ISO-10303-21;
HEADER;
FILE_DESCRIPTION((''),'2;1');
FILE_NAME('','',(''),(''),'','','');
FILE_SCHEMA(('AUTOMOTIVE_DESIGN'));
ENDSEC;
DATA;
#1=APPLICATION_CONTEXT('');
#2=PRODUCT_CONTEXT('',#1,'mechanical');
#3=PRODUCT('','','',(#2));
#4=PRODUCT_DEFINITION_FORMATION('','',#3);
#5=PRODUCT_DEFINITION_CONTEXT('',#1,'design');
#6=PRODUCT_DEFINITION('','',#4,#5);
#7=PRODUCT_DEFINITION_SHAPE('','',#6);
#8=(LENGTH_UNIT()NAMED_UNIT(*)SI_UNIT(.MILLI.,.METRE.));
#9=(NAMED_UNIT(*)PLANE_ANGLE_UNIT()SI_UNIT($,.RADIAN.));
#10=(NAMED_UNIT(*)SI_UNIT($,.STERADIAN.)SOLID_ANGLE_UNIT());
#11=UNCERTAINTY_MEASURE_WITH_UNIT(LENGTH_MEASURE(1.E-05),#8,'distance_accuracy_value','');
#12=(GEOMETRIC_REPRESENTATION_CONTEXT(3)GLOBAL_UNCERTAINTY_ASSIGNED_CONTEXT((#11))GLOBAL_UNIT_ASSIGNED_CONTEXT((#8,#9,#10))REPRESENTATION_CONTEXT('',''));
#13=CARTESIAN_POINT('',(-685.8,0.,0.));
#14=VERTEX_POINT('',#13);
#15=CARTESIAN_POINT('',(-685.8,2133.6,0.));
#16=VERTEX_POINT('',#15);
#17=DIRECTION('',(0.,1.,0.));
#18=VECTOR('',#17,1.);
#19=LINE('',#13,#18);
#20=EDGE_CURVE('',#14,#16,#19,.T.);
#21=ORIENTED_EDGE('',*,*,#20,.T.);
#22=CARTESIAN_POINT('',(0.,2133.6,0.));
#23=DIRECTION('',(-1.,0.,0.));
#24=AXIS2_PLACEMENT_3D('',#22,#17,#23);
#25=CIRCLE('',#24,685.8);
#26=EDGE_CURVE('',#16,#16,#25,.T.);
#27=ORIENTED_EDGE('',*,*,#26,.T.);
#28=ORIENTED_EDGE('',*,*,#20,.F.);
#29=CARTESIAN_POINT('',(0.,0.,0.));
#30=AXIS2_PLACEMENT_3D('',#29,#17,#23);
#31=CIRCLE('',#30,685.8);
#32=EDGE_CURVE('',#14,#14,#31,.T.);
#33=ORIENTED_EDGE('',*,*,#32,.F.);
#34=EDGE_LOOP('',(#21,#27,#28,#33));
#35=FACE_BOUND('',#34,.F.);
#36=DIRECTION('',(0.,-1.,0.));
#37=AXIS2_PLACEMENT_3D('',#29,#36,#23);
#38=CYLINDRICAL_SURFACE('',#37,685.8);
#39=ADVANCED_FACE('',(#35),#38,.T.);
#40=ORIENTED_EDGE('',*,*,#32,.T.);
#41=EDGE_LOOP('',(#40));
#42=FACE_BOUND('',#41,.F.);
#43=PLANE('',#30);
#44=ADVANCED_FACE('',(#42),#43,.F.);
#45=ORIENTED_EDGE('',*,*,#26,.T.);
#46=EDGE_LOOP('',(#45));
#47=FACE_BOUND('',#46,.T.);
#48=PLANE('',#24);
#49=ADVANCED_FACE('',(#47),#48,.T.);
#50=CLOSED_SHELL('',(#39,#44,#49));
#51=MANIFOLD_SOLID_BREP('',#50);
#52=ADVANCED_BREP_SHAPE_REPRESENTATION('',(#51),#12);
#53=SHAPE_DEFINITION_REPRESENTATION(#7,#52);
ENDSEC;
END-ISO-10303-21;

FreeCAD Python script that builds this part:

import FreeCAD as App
import Part
import Sketcher
from FreeCAD import Vector
Q = App.Units.Quantity

doc = App.newDocument("Part")
body = doc.addObject("PartDesign::Body", "Body")

# Sketch on XZ plane
sketch1 = body.newObject("Sketcher::SketchObject", "Sketch")
sketch1.AttachmentSupport = (doc.getObject("XZ_Plane"), [""])
sketch1.MapMode = "FlatFace"
sketch1.addGeometry(Part.Circle(Vector(0, 0, 0), Vector(0, 0, 1), 685.8), False)
sketch1.addConstraint([
    Sketcher.Constraint("Coincident", 0, 3, -1, 1),
    Sketcher.Constraint("Diameter", 0, Q("54 in")),
])
pad1 = body.newObject("PartDesign::Pad", "Pad")
pad1.Profile = sketch1
pad1.Length = Q("84 in")
pad1.Reversed = True

doc.recompute()
